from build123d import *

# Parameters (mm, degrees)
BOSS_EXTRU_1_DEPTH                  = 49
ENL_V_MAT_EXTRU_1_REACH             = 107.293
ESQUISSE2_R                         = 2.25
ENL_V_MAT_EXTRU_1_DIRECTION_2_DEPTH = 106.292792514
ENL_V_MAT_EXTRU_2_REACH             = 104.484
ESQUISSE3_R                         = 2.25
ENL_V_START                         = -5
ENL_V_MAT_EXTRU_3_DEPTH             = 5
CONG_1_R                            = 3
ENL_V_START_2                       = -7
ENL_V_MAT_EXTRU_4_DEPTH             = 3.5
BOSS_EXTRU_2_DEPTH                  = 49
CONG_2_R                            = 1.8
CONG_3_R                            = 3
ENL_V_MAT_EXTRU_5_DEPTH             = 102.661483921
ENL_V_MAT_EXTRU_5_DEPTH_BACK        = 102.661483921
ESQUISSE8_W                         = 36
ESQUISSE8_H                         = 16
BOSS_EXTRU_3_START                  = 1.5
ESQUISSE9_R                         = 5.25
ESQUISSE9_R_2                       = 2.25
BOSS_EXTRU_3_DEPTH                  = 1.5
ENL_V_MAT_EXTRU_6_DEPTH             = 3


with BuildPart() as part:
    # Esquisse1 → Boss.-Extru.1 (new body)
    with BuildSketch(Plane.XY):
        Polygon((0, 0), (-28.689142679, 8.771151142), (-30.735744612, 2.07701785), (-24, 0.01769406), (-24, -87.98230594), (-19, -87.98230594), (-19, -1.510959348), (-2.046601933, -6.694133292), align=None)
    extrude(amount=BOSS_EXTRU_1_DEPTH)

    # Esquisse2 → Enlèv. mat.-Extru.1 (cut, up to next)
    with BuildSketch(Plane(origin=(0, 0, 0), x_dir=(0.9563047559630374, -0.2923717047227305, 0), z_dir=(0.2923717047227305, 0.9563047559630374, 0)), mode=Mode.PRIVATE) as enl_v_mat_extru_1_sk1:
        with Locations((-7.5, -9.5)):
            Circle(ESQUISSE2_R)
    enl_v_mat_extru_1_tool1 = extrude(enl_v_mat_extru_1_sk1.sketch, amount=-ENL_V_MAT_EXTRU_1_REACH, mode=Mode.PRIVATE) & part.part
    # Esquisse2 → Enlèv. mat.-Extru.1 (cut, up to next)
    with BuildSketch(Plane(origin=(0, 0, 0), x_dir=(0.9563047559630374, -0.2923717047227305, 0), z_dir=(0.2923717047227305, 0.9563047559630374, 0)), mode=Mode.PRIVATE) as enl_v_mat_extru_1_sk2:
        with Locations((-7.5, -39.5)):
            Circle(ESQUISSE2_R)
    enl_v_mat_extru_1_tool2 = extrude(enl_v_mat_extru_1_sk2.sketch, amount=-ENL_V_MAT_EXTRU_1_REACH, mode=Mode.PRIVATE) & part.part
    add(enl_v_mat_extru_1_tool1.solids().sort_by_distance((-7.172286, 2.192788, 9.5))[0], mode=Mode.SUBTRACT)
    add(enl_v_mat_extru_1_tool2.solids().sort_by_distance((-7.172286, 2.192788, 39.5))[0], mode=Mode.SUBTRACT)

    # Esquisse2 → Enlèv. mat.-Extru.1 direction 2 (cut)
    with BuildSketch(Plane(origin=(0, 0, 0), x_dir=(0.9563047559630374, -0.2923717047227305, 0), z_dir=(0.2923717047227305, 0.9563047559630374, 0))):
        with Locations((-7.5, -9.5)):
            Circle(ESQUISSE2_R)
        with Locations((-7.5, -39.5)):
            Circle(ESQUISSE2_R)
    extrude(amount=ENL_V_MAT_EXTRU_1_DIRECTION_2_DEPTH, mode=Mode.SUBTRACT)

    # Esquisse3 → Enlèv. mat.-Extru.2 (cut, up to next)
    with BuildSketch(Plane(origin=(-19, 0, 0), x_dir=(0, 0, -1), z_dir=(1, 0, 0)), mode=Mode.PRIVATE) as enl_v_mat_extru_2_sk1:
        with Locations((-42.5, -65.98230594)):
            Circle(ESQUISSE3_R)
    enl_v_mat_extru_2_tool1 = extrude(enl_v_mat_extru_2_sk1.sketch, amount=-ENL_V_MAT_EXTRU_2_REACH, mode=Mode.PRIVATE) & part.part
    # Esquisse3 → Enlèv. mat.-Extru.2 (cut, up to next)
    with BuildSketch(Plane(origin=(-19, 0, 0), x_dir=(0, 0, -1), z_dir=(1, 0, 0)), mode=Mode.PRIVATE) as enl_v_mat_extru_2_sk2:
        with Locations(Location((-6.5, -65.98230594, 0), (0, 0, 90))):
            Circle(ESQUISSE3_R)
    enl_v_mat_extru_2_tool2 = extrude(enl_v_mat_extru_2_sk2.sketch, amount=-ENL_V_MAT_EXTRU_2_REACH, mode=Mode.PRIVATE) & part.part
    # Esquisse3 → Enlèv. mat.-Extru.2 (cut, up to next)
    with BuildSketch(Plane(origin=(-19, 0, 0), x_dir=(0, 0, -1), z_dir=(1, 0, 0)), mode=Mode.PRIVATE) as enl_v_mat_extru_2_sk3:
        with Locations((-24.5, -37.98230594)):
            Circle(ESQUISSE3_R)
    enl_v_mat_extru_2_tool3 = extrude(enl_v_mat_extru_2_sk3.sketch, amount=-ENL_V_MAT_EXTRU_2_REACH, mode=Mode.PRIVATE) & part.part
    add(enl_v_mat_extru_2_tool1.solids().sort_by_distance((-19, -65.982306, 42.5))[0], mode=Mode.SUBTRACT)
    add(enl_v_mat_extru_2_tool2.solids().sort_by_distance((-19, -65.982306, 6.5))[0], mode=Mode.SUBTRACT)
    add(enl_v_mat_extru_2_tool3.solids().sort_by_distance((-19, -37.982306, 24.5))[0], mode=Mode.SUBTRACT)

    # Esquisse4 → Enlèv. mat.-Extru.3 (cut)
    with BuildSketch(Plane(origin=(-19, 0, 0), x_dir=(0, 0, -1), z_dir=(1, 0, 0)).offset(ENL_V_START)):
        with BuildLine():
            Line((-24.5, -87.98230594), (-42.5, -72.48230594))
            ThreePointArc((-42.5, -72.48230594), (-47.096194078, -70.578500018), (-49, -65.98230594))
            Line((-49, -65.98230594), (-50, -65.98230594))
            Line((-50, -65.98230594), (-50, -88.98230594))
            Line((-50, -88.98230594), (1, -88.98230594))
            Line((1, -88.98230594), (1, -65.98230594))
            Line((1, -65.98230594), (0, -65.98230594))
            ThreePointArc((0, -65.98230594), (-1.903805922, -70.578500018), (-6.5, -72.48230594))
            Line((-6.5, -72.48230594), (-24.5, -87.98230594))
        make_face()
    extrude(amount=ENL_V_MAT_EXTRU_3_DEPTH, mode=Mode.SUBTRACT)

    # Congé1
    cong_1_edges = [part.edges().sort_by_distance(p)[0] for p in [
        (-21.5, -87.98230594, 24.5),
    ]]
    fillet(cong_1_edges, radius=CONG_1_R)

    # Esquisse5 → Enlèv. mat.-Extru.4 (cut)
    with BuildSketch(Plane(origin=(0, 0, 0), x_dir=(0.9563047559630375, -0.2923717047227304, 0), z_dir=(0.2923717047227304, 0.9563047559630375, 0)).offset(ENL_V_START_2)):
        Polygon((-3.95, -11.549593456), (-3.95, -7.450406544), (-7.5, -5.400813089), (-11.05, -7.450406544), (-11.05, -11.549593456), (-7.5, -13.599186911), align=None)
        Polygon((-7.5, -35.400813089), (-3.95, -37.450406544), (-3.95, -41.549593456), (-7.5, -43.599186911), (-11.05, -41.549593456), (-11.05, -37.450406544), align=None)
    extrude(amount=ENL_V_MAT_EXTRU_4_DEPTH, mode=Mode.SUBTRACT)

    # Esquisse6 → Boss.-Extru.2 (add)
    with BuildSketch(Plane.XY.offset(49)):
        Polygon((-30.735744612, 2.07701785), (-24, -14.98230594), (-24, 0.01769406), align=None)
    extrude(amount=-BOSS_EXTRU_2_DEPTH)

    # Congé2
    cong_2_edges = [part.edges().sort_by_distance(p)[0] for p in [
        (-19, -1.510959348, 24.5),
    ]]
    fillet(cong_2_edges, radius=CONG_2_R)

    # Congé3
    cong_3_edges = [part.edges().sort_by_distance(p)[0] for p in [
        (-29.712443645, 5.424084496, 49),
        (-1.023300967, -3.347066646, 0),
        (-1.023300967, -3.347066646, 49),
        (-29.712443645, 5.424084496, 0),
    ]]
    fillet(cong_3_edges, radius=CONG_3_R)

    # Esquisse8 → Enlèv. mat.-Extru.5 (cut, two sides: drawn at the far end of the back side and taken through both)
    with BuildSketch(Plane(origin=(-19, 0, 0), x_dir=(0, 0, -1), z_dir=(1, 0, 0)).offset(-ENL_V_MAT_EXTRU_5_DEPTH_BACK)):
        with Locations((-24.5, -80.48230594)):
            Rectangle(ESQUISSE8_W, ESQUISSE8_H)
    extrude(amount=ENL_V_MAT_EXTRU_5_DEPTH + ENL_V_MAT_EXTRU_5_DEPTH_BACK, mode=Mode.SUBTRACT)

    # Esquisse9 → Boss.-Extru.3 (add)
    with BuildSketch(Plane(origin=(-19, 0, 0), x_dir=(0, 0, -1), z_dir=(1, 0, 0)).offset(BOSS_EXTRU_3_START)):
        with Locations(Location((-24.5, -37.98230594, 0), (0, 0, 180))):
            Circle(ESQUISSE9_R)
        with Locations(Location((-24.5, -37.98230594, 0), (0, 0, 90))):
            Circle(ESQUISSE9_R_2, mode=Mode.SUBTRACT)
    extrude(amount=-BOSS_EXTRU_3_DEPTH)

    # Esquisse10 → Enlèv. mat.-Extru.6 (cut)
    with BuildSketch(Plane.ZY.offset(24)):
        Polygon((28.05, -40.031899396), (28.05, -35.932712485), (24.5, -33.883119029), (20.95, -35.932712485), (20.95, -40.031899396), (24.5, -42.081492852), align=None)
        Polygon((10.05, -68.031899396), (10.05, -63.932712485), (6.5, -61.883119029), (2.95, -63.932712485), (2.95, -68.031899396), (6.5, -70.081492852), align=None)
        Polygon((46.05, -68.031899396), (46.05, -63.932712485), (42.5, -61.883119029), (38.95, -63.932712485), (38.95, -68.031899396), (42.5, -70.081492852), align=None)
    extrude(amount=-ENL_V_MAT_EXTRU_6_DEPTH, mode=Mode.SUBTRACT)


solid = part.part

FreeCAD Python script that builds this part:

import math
import FreeCAD as App
import Part
import Sketcher
from FreeCAD import Vector
Q = App.Units.Quantity


def edges_at(feature, points):
    """Names of the edges that pass closest to the given points."""
    edges = feature.Shape.Edges
    near = lambda p: min(range(len(edges)), key=lambda i: edges[i].distToShape(Part.Vertex(*p))[0])
    return sorted({f"Edge{near(p) + 1}" for p in points})


def add_polygon(sketch, points):
    """Adds a closed chain of lines whose ends are joined by coincident constraints."""
    first, n = sketch.GeometryCount, len(points)
    for a, b in zip(points, points[1:] + points[:1]):
        sketch.addGeometry(Part.LineSegment(App.Vector(*a, 0), App.Vector(*b, 0)), False)
    for i in range(n):
        sketch.addConstraint(Sketcher.Constraint("Coincident", first + i, 2, first + (i + 1) % n, 1))

doc = App.newDocument("Part")
params = doc.addObject("Spreadsheet::Sheet", "Params")
for row, (alias, value) in enumerate([
    ("sketch1_width", "5 mm"),
    ("sketch1_height", "88 mm"),
    ("sketch1_length", "30 mm"),
    ("sketch1_length2", "7 mm"),
    ("pad1_length", "49 mm"),
    ("sketch2_diameter", "4.5 mm"),
    ("sketch3_diameter", "4.5 mm"),
    ("sketch4_diameter", "4.5 mm"),
    ("pocket3_length", "106.292793 mm"),
    ("sketch5_diameter", "4.5 mm"),
    ("sketch6_diameter", "4.5 mm"),
    ("sketch7_diameter", "4.5 mm"),
    ("sketch8_radius", "6.5 mm"),
    ("sketch8_width", "23 mm"),
    ("sketch8_height", "1 mm"),
    ("sketch8_height2", "51 mm"),
    ("pocket7_length", "5 mm"),
    ("fillet_radius", "3 mm"),
    ("pocket8_length", "3.5 mm"),
    ("sketch10_height", "15 mm"),
    ("pad2_length", "49 mm"),
    ("fillet2_radius", "1.8 mm"),
    ("fillet3_radius", "3 mm"),
    ("sketch11_width", "16 mm"),
    ("sketch11_height", "36 mm"),
    ("sketch12_diameter", "10.5 mm"),
    ("sketch12_diameter2", "4.5 mm"),
    ("pad3_length", "1.5 mm"),
    ("pocket10_length", "3 mm"),
], start=1):
    params.set(f"A{row}", alias)
    params.set(f"B{row}", "=" + value)
    params.setAlias(f"B{row}", alias)

body = doc.addObject("PartDesign::Body", "Body")

# Sketch on XY plane
sketch1 = body.newObject("Sketcher::SketchObject", "Sketch")
sketch1.AttachmentSupport = (doc.getObject("XY_Plane"), [""])
sketch1.MapMode = "FlatFace"
add_polygon(sketch1, [(0, 0), (-28.689143, 8.771151), (-30.735745, 2.077018), (-24, 0.017694), (-24, -87.982306), (-19, -87.982306), (-19, -1.510959), (-2.046602, -6.694133)])  # lines 0-7
sketch1.addConstraint([
    Sketcher.Constraint("Vertical", 3),
    Sketcher.Constraint("Horizontal", 4),
    Sketcher.Constraint("Vertical", 5),
    Sketcher.Constraint("Coincident", 7, 2, -1, 1),
    Sketcher.Constraint("Perpendicular", 0, 1),
    Sketcher.Constraint("Perpendicular", 1, 2),
    Sketcher.Constraint("Parallel", 2, 6),
    Sketcher.Constraint("Perpendicular", 6, 7),
    Sketcher.Constraint("Equal", 1, 7),
    Sketcher.Constraint("DistanceX", 4, 1, 4, 2, 5.0),
    Sketcher.Constraint("DistanceY", 3, 2, 3, 1, 88.0),
    Sketcher.Constraint("Angle", 0, Q("163 deg")),
    Sketcher.Constraint("Distance", 0, 30.0),
    Sketcher.Constraint("Distance", 1, 7.0),
    Sketcher.Constraint("DistanceX", 2, 2, -1, 1, 24.0),
])
sketch1.setExpression("Constraints[17]", "Params.sketch1_width")
sketch1.setExpression("Constraints[18]", "Params.sketch1_height")
sketch1.setExpression("Constraints[20]", "Params.sketch1_length")
sketch1.setExpression("Constraints[21]", "Params.sketch1_length2")
pad1 = body.newObject("PartDesign::Pad", "Pad")
pad1.Profile = sketch1
pad1.setExpression("Length", "Params.pad1_length")

# Sketch on an angled plane
sketch2 = body.newObject("Sketcher::SketchObject", "Sketch001")
sketch2.Placement = App.Placement(Vector(0, 0, 0), App.Rotation(Vector(0.956304756, -0.292371705, 0), Vector(0, 0, -1), Vector(0.292371705, 0.956304756, 0), "ZXY"))
sketch2.addGeometry(Part.Circle(Vector(-7.5, -9.5, 0), Vector(0, 0, 1), 2.25), False)
sketch2.addConstraint([
    Sketcher.Constraint("Diameter", 0, 4.5),
    Sketcher.Constraint("DistanceX", 0, 3, -1, 1, 7.5),
    Sketcher.Constraint("DistanceY", 0, 3, -1, 1, 9.5),
])
sketch2.setExpression("Constraints[0]", "Params.sketch2_diameter")
pocket1 = body.newObject("PartDesign::Pocket", "Pocket")
pocket1.Profile = sketch2
pocket1.Type = "UpToFirst"

# Sketch on an angled plane
sketch3 = body.newObject("Sketcher::SketchObject", "Sketch002")
sketch3.Placement = App.Placement(Vector(0, 0, 0), App.Rotation(Vector(0.956304756, -0.292371705, 0), Vector(0, 0, -1), Vector(0.292371705, 0.956304756, 0), "ZXY"))
sketch3.addGeometry(Part.Circle(Vector(-7.5, -39.5, 0), Vector(0, 0, 1), 2.25), False)
sketch3.addConstraint([
    Sketcher.Constraint("Diameter", 0, 4.5),
    Sketcher.Constraint("DistanceX", 0, 3, -1, 1, 7.5),
    Sketcher.Constraint("DistanceY", 0, 3, -1, 1, 39.5),
])
sketch3.setExpression("Constraints[0]", "Params.sketch3_diameter")
pocket2 = body.newObject("PartDesign::Pocket", "Pocket001")
pocket2.Profile = sketch3
pocket2.Type = "UpToFirst"

# Sketch on an angled plane
sketch4 = body.newObject("Sketcher::SketchObject", "Sketch003")
sketch4.Placement = App.Placement(Vector(0, 0, 0), App.Rotation(Vector(0.956304756, -0.292371705, 0), Vector(0, 0, -1), Vector(0.292371705, 0.956304756, 0), "ZXY"))
sketch4.addGeometry([
    Part.Circle(Vector(-7.5, -9.5, 0), Vector(0, 0, 1), 2.25),
    Part.Circle(Vector(-7.5, -39.5, 0), Vector(0, 0, 1), 2.25),
], False)
sketch4.addConstraint([
    Sketcher.Constraint("Equal", 0, 1),
    Sketcher.Constraint("Vertical", 0, 3, 1, 3),
    Sketcher.Constraint("Diameter", 0, 4.5),
    Sketcher.Constraint("DistanceY", 1, 3, 0, 3, 30.0),
    Sketcher.Constraint("DistanceX", 0, 3, -1, 1, 7.5),
    Sketcher.Constraint("DistanceY", 0, 3, -1, 1, 9.5),
])
sketch4.setExpression("Constraints[2]", "Params.sketch4_diameter")
pocket3 = body.newObject("PartDesign::Pocket", "Pocket002")
pocket3.Profile = sketch4
pocket3.setExpression("Length", "Params.pocket3_length")
pocket3.Reversed = True

# Sketch on YZ plane
sketch5 = body.newObject("Sketcher::SketchObject", "Sketch004")
sketch5.AttachmentSupport = (doc.getObject("YZ_Plane"), [""])
sketch5.MapMode = "FlatFace"
sketch5.AttachmentOffset = App.Placement(Vector(0, 0, -19), App.Rotation())
sketch5.addGeometry(Part.Circle(Vector(-65.982306, 42.5, 0), Vector(0, 0, 1), 2.25), False)
sketch5.addConstraint([
    Sketcher.Constraint("Diameter", 0, 4.5),
    Sketcher.Constraint("DistanceY", -1, 1, 0, 3, 42.5),
    Sketcher.Constraint("DistanceX", 0, 3, -1, 1, 65.982306),
])
sketch5.setExpression("Constraints[0]", "Params.sketch5_diameter")
pocket4 = body.newObject("PartDesign::Pocket", "Pocket003")
pocket4.Profile = sketch5
pocket4.Type = "UpToFirst"

# Sketch on YZ plane
sketch6 = body.newObject("Sketcher::SketchObject", "Sketch005")
sketch6.AttachmentSupport = (doc.getObject("YZ_Plane"), [""])
sketch6.MapMode = "FlatFace"
sketch6.AttachmentOffset = App.Placement(Vector(0, 0, -19), App.Rotation())
sketch6.addGeometry(Part.Circle(Vector(-65.982306, 6.5, 0), Vector(0, 0, 1), 2.25), False)
sketch6.addConstraint([
    Sketcher.Constraint("Diameter", 0, 4.5),
    Sketcher.Constraint("DistanceY", -1, 1, 0, 3, 6.5),
    Sketcher.Constraint("DistanceX", 0, 3, -1, 1, 65.982306),
])
sketch6.setExpression("Constraints[0]", "Params.sketch6_diameter")
pocket5 = body.newObject("PartDesign::Pocket", "Pocket004")
pocket5.Profile = sketch6
pocket5.Type = "UpToFirst"

# Sketch on YZ plane
sketch7 = body.newObject("Sketcher::SketchObject", "Sketch006")
sketch7.AttachmentSupport = (doc.getObject("YZ_Plane"), [""])
sketch7.MapMode = "FlatFace"
sketch7.AttachmentOffset = App.Placement(Vector(0, 0, -19), App.Rotation())
sketch7.addGeometry(Part.Circle(Vector(-37.982306, 24.5, 0), Vector(0, 0, 1), 2.25), False)
sketch7.addConstraint([
    Sketcher.Constraint("Diameter", 0, 4.5),
    Sketcher.Constraint("DistanceY", -1, 1, 0, 3, 24.5),
    Sketcher.Constraint("DistanceX", 0, 3, -1, 1, 37.982306),
])
sketch7.setExpression("Constraints[0]", "Params.sketch7_diameter")
pocket6 = body.newObject("PartDesign::Pocket", "Pocket005")
pocket6.Profile = sketch7
pocket6.Type = "UpToFirst"

# Sketch on YZ plane
sketch8 = body.newObject("Sketcher::SketchObject", "Sketch007")
sketch8.AttachmentSupport = (doc.getObject("YZ_Plane"), [""])
sketch8.MapMode = "FlatFace"
sketch8.AttachmentOffset = App.Placement(Vector(0, 0, -24), App.Rotation())
sketch8.addGeometry([
    Part.LineSegment(Vector(-87.982306, 24.5, 0), Vector(-72.482306, 42.5, 0)),  # 0
    Part.ArcOfCircle(Part.Circle(Vector(-65.982306, 42.5, 0), Vector(0, 0, 1), 6.5), math.radians(90), math.radians(180)),  # 1
    Part.LineSegment(Vector(-65.982306, 49, 0), Vector(-65.982306, 50, 0)),  # 2
    Part.LineSegment(Vector(-65.982306, 50, 0), Vector(-88.982306, 50, 0)),  # 3
    Part.LineSegment(Vector(-88.982306, 50, 0), Vector(-88.982306, -1, 0)),  # 4
    Part.LineSegment(Vector(-88.982306, -1, 0), Vector(-65.982306, -1, 0)),  # 5
    Part.LineSegment(Vector(-65.982306, -1, 0), Vector(-65.982306, 0, 0)),  # 6
    Part.ArcOfCircle(Part.Circle(Vector(-65.982306, 6.5, 0), Vector(0, 0, 1), 6.5), math.radians(180), math.radians(270)),  # 7
    Part.LineSegment(Vector(-72.482306, 6.5, 0), Vector(-87.982306, 24.5, 0)),  # 8
], False)
sketch8.addConstraint([
    Sketcher.Constraint("Coincident", 0, 2, 1, 2),
    Sketcher.Constraint("Coincident", 1, 1, 2, 1),
    Sketcher.Constraint("Coincident", 2, 2, 3, 1),
    Sketcher.Constraint("Coincident", 3, 2, 4, 1),
    Sketcher.Constraint("Coincident", 4, 2, 5, 1),
    Sketcher.Constraint("Coincident", 5, 2, 6, 1),
    Sketcher.Constraint("Coincident", 6, 2, 7, 2),
    Sketcher.Constraint("Coincident", 7, 1, 8, 1),
    Sketcher.Constraint("Coincident", 8, 2, 0, 1),
    Sketcher.Constraint("Vertical", 2),
    Sketcher.Constraint("Horizontal", 3),
    Sketcher.Constraint("Vertical", 4),
    Sketcher.Constraint("Horizontal", 5),
    Sketcher.Constraint("Vertical", 6),
    Sketcher.Constraint("Equal", 1, 7),
    Sketcher.Constraint("PointOnObject", 6, 2, -1),
    Sketcher.Constraint("Horizontal", 1, 3, 0, 2),
    Sketcher.Constraint("Vertical", 1, 3, 7, 3),
    Sketcher.Constraint("Vertical", 7, 3, 1, 1),
    Sketcher.Constraint("Vertical", 2, 2, 5, 2),
    Sketcher.Constraint("Equal", 2, 6),
    Sketcher.Constraint("Equal", 0, 8),
    Sketcher.Constraint("Radius", 1, 6.5),
    Sketcher.Constraint("DistanceX", 3, 2, 3, 1, 23.0),
    Sketcher.Constraint("DistanceY", 2, 1, 2, 2, 1.0),
    Sketcher.Constraint("DistanceY", 4, 2, 4, 1, 51.0),
    Sketcher.Constraint("DistanceY", 7, 1, 0, 2, 36.0),
    Sketcher.Constraint("DistanceX", 3, 2, 8, 2, 1.0),
    Sketcher.Constraint("DistanceX", 1, 3, -1, 1, 65.982306),
])
sketch8.setExpression("Constraints[22]", "Params.sketch8_radius")
sketch8.setExpression("Constraints[23]", "Params.sketch8_width")
sketch8.setExpression("Constraints[24]", "Params.sketch8_height")
sketch8.setExpression("Constraints[25]", "Params.sketch8_height2")
pocket7 = body.newObject("PartDesign::Pocket", "Pocket006")
pocket7.Profile = sketch8
pocket7.setExpression("Length", "Params.pocket7_length")
pocket7.Reversed = True
doc.recompute()

fillet = body.newObject("PartDesign::Fillet", "Fillet")
fillet.Base = (pocket7, edges_at(pocket7, [(-21.5, -87.982, 24.5)]))
fillet.setExpression("Radius", "Params.fillet_radius")

# Sketch on an angled plane
sketch9 = body.newObject("Sketcher::SketchObject", "Sketch008")
sketch9.Placement = App.Placement(Vector(-2.046602, -6.694133, 0), App.Rotation(Vector(0.956304756, -0.292371705, 0), Vector(0, 0, -1), Vector(0.292371705, 0.956304756, 0), "ZXY"))
add_polygon(sketch9, [(-3.95, -11.549593), (-3.95, -7.450407), (-7.5, -5.400813), (-11.05, -7.450407), (-11.05, -11.549593), (-7.5, -13.599187)])  # lines 0-5
add_polygon(sketch9, [(-3.95, -37.450407), (-7.5, -35.400813), (-11.05, -37.450407), (-11.05, -41.549593), (-7.5, -43.599187), (-3.95, -41.549593)])  # lines 6-11
sketch9.addConstraint([
    Sketcher.Constraint("Vertical", 0),
    Sketcher.Constraint("Vertical", 3),
    Sketcher.Constraint("Vertical", 8),
    Sketcher.Constraint("Vertical", 11),
    Sketcher.Constraint("Parallel", 1, 4),
    Sketcher.Constraint("Parallel", 2, 5),
    Sketcher.Constraint("Parallel", 4, 6),
    Sketcher.Constraint("Parallel", 5, 7),
    Sketcher.Constraint("Parallel", 6, 9),
    Sketcher.Constraint("Parallel", 7, 10),
    Sketcher.Constraint("Horizontal", 0, 2, 2, 2),
    Sketcher.Constraint("Horizontal", 3, 2, 5, 2),
    Sketcher.Constraint("Horizontal", 8, 2, 10, 2),
    Sketcher.Constraint("Horizontal", 7, 2, 11, 2),
    Sketcher.Constraint("Vertical", 1, 2, 4, 2),
    Sketcher.Constraint("Vertical", 4, 2, 6, 2),
    Sketcher.Constraint("Vertical", 3, 2, 7, 2),
    Sketcher.Constraint("Equal", 3, 8),
    Sketcher.Constraint("Angle", 1, Q("150 deg")),
    Sketcher.Constraint("DistanceY", 7, 2, 2, 2, 30.0),
    Sketcher.Constraint("DistanceX", 1, 2, -1, 1, 7.5),
    Sketcher.Constraint("DistanceX", 2, 2, 0, 2, 7.1),
    Sketcher.Constraint("DistanceY", 0, 1, 0, 2, 4.099187),
    Sketcher.Constraint("DistanceY", 0, 2, -1, 1, 7.450407),
])
pocket8 = body.newObject("PartDesign::Pocket", "Pocket007")
pocket8.Profile = sketch9
pocket8.setExpression("Length", "Params.pocket8_length")
pocket8.Reversed = True

# Sketch on XY plane
sketch10 = body.newObject("Sketcher::SketchObject", "Sketch009")
sketch10.AttachmentSupport = (doc.getObject("XY_Plane"), [""])
sketch10.MapMode = "FlatFace"
sketch10.AttachmentOffset = App.Placement(Vector(0, 0, 49), App.Rotation())
add_polygon(sketch10, [(-30.735745, 2.077018), (-24, -14.982306), (-24, 0.017694)])  # lines 0-2
sketch10.addConstraint([
    Sketcher.Constraint("Vertical", 1),
    Sketcher.Constraint("DistanceY", 1, 1, 1, 2, 15.0),
    Sketcher.Constraint("Angle", 2, Q("163 deg")),
    Sketcher.Constraint("DistanceX", 0, 2, -1, 1, 24.0),
    Sketcher.Constraint("Distance", 0, 18.340959),
    Sketcher.Constraint("DistanceY", 0, 2, -1, 1, 14.982306),
])
sketch10.setExpression("Constraints[4]", "Params.sketch10_height")
pad2 = body.newObject("PartDesign::Pad", "Pad001")
pad2.Profile = sketch10
pad2.setExpression("Length", "Params.pad2_length")
pad2.Reversed = True
doc.recompute()

fillet2 = body.newObject("PartDesign::Fillet", "Fillet001")
fillet2.Base = (pad2, edges_at(pad2, [(-19, -1.511, 24.5)]))
fillet2.setExpression("Radius", "Params.fillet2_radius")
doc.recompute()

fillet3 = body.newObject("PartDesign::Fillet", "Fillet002")
fillet3.Base = (fillet2, edges_at(fillet2, [
    (-29.712, 5.424, 49),
    (-1.023, -3.347, 0),
    (-1.023, -3.347, 49),
    (-29.712, 5.424, 0),
]))
fillet3.setExpression("Radius", "Params.fillet3_radius")

# Sketch on YZ plane
sketch11 = body.newObject("Sketcher::SketchObject", "Sketch010")
sketch11.AttachmentSupport = (doc.getObject("YZ_Plane"), [""])
sketch11.MapMode = "FlatFace"
sketch11.AttachmentOffset = App.Placement(Vector(0, 0, -19), App.Rotation())
add_polygon(sketch11, [(-72.482306, 42.5), (-88.482306, 42.5), (-88.482306, 6.5), (-72.482306, 6.5)])  # lines 0-3
sketch11.addConstraint([
    Sketcher.Constraint("Horizontal", 0),
    Sketcher.Constraint("Vertical", 1),
    Sketcher.Constraint("Horizontal", 2),
    Sketcher.Constraint("Vertical", 3),
    Sketcher.Constraint("DistanceX", 0, 2, 0, 1, 16.0),
    Sketcher.Constraint("DistanceY", 1, 2, 1, 1, 36.0),
    Sketcher.Constraint("DistanceY", -1, 1, 0, 2, 42.5),
    Sketcher.Constraint("DistanceX", 0, 2, -1, 1, 88.482306),
])
sketch11.setExpression("Constraints[8]", "Params.sketch11_width")
sketch11.setExpression("Constraints[9]", "Params.sketch11_height")
pocket9 = body.newObject("PartDesign::Pocket", "Pocket008")
pocket9.Profile = sketch11
pocket9.Type = "ThroughAll"
pocket9.Midplane = True

# Sketch on YZ plane
sketch12 = body.newObject("Sketcher::SketchObject", "Sketch011")
sketch12.AttachmentSupport = (doc.getObject("YZ_Plane"), [""])
sketch12.MapMode = "FlatFace"
sketch12.AttachmentOffset = App.Placement(Vector(0, 0, -17.5), App.Rotation())
sketch12.addGeometry([
    Part.Circle(Vector(-37.982306, 24.5, 0), Vector(0, 0, 1), 5.25),
    Part.Circle(Vector(-37.982306, 24.5, 0), Vector(0, 0, 1), 2.25),
], False)
sketch12.addConstraint([
    Sketcher.Constraint("Coincident", 1, 3, 0, 3),
    Sketcher.Constraint("Diameter", 0, 10.5),
    Sketcher.Constraint("Diameter", 1, 4.5),
    Sketcher.Constraint("DistanceY", -1, 1, 0, 3, 24.5),
    Sketcher.Constraint("DistanceX", 0, 3, -1, 1, 37.982306),
])
sketch12.setExpression("Constraints[1]", "Params.sketch12_diameter")
sketch12.setExpression("Constraints[2]", "Params.sketch12_diameter2")
pad3 = body.newObject("PartDesign::Pad", "Pad002")
pad3.Profile = sketch12
pad3.setExpression("Length", "Params.pad3_length")
pad3.Reversed = True

# Sketch on YZ plane
sketch13 = body.newObject("Sketcher::SketchObject", "Sketch012")
sketch13.AttachmentSupport = (doc.getObject("YZ_Plane"), [""])
sketch13.MapMode = "FlatFace"
sketch13.AttachmentOffset = App.Placement(Vector(0, 0, -24), App.Rotation())
add_polygon(sketch13, [(-40.031899, 28.05), (-35.932712, 28.05), (-33.883119, 24.5), (-35.932712, 20.95), (-40.031899, 20.95), (-42.081493, 24.5)])  # lines 0-5
add_polygon(sketch13, [(-68.031899, 10.05), (-63.932712, 10.05), (-61.883119, 6.5), (-63.932712, 2.95), (-68.031899, 2.95), (-70.081493, 6.5)])  # lines 6-11
add_polygon(sketch13, [(-68.031899, 46.05), (-63.932712, 46.05), (-61.883119, 42.5), (-63.932712, 38.95), (-68.031899, 38.95), (-70.081493, 42.5)])  # lines 12-17
sketch13.addConstraint([
    Sketcher.Constraint("Horizontal", 0),
    Sketcher.Constraint("Horizontal", 3),
    Sketcher.Constraint("Horizontal", 6),
    Sketcher.Constraint("Horizontal", 9),
    Sketcher.Constraint("Horizontal", 12),
    Sketcher.Constraint("Horizontal", 15),
    Sketcher.Constraint("Parallel", 1, 4),
    Sketcher.Constraint("Parallel", 2, 5),
    Sketcher.Constraint("Parallel", 4, 7),
    Sketcher.Constraint("Parallel", 5, 8),
    Sketcher.Constraint("Parallel", 7, 10),
    Sketcher.Constraint("Parallel", 8, 11),
    Sketcher.Constraint("Parallel", 10, 13),
    Sketcher.Constraint("Parallel", 11, 14),
    Sketcher.Constraint("Parallel", 13, 16),
    Sketcher.Constraint("Parallel", 14, 17),
    Sketcher.Constraint("Horizontal", 1, 2, 4, 2),
    Sketcher.Constraint("Horizontal", 7, 2, 10, 2),
    Sketcher.Constraint("Horizontal", 13, 2, 16, 2),
    Sketcher.Constraint("Vertical", 0, 2, 2, 2),
    Sketcher.Constraint("Vertical", 3, 2, 5, 2),
    Sketcher.Constraint("Vertical", 6, 2, 8, 2),
    Sketcher.Constraint("Vertical", 8, 2, 12, 2),
    Sketcher.Constraint("Vertical", 7, 2, 13, 2),
    Sketcher.Constraint("Vertical", 12, 2, 14, 2),
    Sketcher.Constraint("Vertical", 11, 2, 15, 2),
    Sketcher.Constraint("Equal", 3, 6),
    Sketcher.Constraint("Equal", 5, 7),
    Sketcher.Constraint("Angle", 1, Q("-60 deg")),
    Sketcher.Constraint("DistanceY", 6, 2, 5, 2, 18.0),
    Sketcher.Constraint("DistanceX", 6, 2, 2, 2, 28.0),
    Sketcher.Constraint("DistanceY", 5, 2, 12, 2, 18.0),
    Sketcher.Constraint("DistanceY", -1, 1, 1, 2, 24.5),
    Sketcher.Constraint("DistanceY", 2, 2, 0, 2, 7.1),
    Sketcher.Constraint("DistanceX", 3, 2, -1, 1, 40.031899),
    Sketcher.Constraint("DistanceX", 0, 1, 0, 2, 4.099187),
])
pocket10 = body.newObject("PartDesign::Pocket", "Pocket009")
pocket10.Profile = sketch13
pocket10.setExpression("Length", "Params.pocket10_length")
pocket10.Reversed = True

doc.recompute()
